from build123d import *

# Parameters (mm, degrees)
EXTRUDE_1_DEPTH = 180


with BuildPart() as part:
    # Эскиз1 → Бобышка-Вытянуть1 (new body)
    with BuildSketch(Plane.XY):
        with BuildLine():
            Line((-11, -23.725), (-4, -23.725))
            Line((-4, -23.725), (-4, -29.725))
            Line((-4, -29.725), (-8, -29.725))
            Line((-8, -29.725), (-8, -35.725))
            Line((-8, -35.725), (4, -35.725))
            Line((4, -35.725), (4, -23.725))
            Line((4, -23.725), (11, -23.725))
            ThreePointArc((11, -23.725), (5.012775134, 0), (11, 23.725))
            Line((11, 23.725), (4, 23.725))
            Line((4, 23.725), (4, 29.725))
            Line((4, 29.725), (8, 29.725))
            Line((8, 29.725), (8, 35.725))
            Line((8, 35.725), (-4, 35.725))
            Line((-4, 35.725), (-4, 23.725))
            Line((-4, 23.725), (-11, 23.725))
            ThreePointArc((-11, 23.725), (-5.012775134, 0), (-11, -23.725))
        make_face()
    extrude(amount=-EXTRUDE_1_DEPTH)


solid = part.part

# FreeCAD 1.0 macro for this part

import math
import FreeCAD as App
import Part
import Sketcher
Q = App.Units.Quantity

doc = App.newDocument("Part")
body = doc.addObject("PartDesign::Body", "Body")

sketch1 = body.newObject("Sketcher::SketchObject", "Sketch")
sketch1.AttachmentSupport = (doc.getObject("XY_Plane"), [""])
sketch1.MapMode = "FlatFace"
sketch1.addGeometry([
    Part.LineSegment(App.Vector(-11, -23.7, 0), App.Vector(-4, -23.7, 0)),
    Part.LineSegment(App.Vector(-4, -23.7, 0), App.Vector(-4, -29.7, 0)),
    Part.LineSegment(App.Vector(-4, -29.7, 0), App.Vector(-8, -29.7, 0)),
    Part.LineSegment(App.Vector(-8, -29.7, 0), App.Vector(-8, -35.7, 0)),
    Part.LineSegment(App.Vector(-8, -35.7, 0), App.Vector(4, -35.7, 0)),
    Part.LineSegment(App.Vector(4, -35.7, 0), App.Vector(4, -23.7, 0)),
    Part.LineSegment(App.Vector(4, -23.7, 0), App.Vector(11, -23.7, 0)),
    Part.ArcOfCircle(Part.Circle(App.Vector(55, 0, 0), App.Vector(0, 0, 1), 50), math.radians(152), math.radians(208)),
    Part.LineSegment(App.Vector(11, 23.7, 0), App.Vector(4, 23.7, 0)),
    Part.LineSegment(App.Vector(4, 23.7, 0), App.Vector(4, 29.7, 0)),
    Part.LineSegment(App.Vector(4, 29.7, 0), App.Vector(8, 29.7, 0)),
    Part.LineSegment(App.Vector(8, 29.7, 0), App.Vector(8, 35.7, 0)),
    Part.LineSegment(App.Vector(8, 35.7, 0), App.Vector(-4, 35.7, 0)),
    Part.LineSegment(App.Vector(-4, 35.7, 0), App.Vector(-4, 23.7, 0)),
    Part.LineSegment(App.Vector(-4, 23.7, 0), App.Vector(-11, 23.7, 0)),
    Part.ArcOfCircle(Part.Circle(App.Vector(-55, 0, 0), App.Vector(0, 0, 1), 50), math.radians(-28), math.radians(28)),
], False)
sketch1.addConstraint([
    Sketcher.Constraint("Coincident", 0, 2, 1, 1),
    Sketcher.Constraint("Coincident", 1, 2, 2, 1),
    Sketcher.Constraint("Coincident", 2, 2, 3, 1),
    Sketcher.Constraint("Coincident", 3, 2, 4, 1),
    Sketcher.Constraint("Coincident", 4, 2, 5, 1),
    Sketcher.Constraint("Coincident", 5, 2, 6, 1),
    Sketcher.Constraint("Coincident", 6, 2, 7, 2),
    Sketcher.Constraint("Coincident", 7, 1, 8, 1),
    Sketcher.Constraint("Coincident", 8, 2, 9, 1),
    Sketcher.Constraint("Coincident", 9, 2, 10, 1),
    Sketcher.Constraint("Coincident", 10, 2, 11, 1),
    Sketcher.Constraint("Coincident", 11, 2, 12, 1),
    Sketcher.Constraint("Coincident", 12, 2, 13, 1),
    Sketcher.Constraint("Coincident", 13, 2, 14, 1),
    Sketcher.Constraint("Coincident", 14, 2, 15, 2),
    Sketcher.Constraint("Coincident", 15, 1, 0, 1),
    Sketcher.Constraint("Horizontal", 0),
    Sketcher.Constraint("Vertical", 1),
    Sketcher.Constraint("Horizontal", 2),
    Sketcher.Constraint("Vertical", 3),
    Sketcher.Constraint("Horizontal", 4),
    Sketcher.Constraint("Vertical", 5),
    Sketcher.Constraint("Horizontal", 6),
    Sketcher.Constraint("Horizontal", 8),
    Sketcher.Constraint("Vertical", 9),
    Sketcher.Constraint("Horizontal", 10),
    Sketcher.Constraint("Vertical", 11),
    Sketcher.Constraint("Horizontal", 12),
    Sketcher.Constraint("Vertical", 13),
    Sketcher.Constraint("Horizontal", 14),
    Sketcher.Constraint("Equal", 7, 15),
    Sketcher.Constraint("Symmetric", 7, 3, 15, 3, -1, 1),
    Sketcher.Constraint("Symmetric", 0, 2, 8, 2, -1, 1),
    Sketcher.Constraint("Symmetric", 2, 2, 10, 2, -1, 1),
    Sketcher.Constraint("Symmetric", 4, 2, 12, 2, -1, 1),
    Sketcher.Constraint("Symmetric", 0, 2, 5, 2, -2),
    Sketcher.Constraint("Symmetric", 7, 1, 14, 2, -2),
    Sketcher.Constraint("Equal", 1, 3),
    Sketcher.Constraint("Equal", 12, 5),
    Sketcher.Constraint("Radius", 7, Q("50 mm")),
    Sketcher.Constraint("DistanceX", 0, 1, 0, 2, Q("7 mm")),
    Sketcher.Constraint("DistanceX", 2, 2, 2, 1, Q("4 mm")),
    Sketcher.Constraint("DistanceX", 4, 1, 4, 2, Q("12 mm")),
    Sketcher.Constraint("DistanceY", 6, 2, 7, 1, Q("47.45 mm")),
])
pad1 = body.newObject("PartDesign::Pad", "Pad")
pad1.Profile = sketch1
pad1.Length = 180
pad1.Reversed = True

doc.recompute()
